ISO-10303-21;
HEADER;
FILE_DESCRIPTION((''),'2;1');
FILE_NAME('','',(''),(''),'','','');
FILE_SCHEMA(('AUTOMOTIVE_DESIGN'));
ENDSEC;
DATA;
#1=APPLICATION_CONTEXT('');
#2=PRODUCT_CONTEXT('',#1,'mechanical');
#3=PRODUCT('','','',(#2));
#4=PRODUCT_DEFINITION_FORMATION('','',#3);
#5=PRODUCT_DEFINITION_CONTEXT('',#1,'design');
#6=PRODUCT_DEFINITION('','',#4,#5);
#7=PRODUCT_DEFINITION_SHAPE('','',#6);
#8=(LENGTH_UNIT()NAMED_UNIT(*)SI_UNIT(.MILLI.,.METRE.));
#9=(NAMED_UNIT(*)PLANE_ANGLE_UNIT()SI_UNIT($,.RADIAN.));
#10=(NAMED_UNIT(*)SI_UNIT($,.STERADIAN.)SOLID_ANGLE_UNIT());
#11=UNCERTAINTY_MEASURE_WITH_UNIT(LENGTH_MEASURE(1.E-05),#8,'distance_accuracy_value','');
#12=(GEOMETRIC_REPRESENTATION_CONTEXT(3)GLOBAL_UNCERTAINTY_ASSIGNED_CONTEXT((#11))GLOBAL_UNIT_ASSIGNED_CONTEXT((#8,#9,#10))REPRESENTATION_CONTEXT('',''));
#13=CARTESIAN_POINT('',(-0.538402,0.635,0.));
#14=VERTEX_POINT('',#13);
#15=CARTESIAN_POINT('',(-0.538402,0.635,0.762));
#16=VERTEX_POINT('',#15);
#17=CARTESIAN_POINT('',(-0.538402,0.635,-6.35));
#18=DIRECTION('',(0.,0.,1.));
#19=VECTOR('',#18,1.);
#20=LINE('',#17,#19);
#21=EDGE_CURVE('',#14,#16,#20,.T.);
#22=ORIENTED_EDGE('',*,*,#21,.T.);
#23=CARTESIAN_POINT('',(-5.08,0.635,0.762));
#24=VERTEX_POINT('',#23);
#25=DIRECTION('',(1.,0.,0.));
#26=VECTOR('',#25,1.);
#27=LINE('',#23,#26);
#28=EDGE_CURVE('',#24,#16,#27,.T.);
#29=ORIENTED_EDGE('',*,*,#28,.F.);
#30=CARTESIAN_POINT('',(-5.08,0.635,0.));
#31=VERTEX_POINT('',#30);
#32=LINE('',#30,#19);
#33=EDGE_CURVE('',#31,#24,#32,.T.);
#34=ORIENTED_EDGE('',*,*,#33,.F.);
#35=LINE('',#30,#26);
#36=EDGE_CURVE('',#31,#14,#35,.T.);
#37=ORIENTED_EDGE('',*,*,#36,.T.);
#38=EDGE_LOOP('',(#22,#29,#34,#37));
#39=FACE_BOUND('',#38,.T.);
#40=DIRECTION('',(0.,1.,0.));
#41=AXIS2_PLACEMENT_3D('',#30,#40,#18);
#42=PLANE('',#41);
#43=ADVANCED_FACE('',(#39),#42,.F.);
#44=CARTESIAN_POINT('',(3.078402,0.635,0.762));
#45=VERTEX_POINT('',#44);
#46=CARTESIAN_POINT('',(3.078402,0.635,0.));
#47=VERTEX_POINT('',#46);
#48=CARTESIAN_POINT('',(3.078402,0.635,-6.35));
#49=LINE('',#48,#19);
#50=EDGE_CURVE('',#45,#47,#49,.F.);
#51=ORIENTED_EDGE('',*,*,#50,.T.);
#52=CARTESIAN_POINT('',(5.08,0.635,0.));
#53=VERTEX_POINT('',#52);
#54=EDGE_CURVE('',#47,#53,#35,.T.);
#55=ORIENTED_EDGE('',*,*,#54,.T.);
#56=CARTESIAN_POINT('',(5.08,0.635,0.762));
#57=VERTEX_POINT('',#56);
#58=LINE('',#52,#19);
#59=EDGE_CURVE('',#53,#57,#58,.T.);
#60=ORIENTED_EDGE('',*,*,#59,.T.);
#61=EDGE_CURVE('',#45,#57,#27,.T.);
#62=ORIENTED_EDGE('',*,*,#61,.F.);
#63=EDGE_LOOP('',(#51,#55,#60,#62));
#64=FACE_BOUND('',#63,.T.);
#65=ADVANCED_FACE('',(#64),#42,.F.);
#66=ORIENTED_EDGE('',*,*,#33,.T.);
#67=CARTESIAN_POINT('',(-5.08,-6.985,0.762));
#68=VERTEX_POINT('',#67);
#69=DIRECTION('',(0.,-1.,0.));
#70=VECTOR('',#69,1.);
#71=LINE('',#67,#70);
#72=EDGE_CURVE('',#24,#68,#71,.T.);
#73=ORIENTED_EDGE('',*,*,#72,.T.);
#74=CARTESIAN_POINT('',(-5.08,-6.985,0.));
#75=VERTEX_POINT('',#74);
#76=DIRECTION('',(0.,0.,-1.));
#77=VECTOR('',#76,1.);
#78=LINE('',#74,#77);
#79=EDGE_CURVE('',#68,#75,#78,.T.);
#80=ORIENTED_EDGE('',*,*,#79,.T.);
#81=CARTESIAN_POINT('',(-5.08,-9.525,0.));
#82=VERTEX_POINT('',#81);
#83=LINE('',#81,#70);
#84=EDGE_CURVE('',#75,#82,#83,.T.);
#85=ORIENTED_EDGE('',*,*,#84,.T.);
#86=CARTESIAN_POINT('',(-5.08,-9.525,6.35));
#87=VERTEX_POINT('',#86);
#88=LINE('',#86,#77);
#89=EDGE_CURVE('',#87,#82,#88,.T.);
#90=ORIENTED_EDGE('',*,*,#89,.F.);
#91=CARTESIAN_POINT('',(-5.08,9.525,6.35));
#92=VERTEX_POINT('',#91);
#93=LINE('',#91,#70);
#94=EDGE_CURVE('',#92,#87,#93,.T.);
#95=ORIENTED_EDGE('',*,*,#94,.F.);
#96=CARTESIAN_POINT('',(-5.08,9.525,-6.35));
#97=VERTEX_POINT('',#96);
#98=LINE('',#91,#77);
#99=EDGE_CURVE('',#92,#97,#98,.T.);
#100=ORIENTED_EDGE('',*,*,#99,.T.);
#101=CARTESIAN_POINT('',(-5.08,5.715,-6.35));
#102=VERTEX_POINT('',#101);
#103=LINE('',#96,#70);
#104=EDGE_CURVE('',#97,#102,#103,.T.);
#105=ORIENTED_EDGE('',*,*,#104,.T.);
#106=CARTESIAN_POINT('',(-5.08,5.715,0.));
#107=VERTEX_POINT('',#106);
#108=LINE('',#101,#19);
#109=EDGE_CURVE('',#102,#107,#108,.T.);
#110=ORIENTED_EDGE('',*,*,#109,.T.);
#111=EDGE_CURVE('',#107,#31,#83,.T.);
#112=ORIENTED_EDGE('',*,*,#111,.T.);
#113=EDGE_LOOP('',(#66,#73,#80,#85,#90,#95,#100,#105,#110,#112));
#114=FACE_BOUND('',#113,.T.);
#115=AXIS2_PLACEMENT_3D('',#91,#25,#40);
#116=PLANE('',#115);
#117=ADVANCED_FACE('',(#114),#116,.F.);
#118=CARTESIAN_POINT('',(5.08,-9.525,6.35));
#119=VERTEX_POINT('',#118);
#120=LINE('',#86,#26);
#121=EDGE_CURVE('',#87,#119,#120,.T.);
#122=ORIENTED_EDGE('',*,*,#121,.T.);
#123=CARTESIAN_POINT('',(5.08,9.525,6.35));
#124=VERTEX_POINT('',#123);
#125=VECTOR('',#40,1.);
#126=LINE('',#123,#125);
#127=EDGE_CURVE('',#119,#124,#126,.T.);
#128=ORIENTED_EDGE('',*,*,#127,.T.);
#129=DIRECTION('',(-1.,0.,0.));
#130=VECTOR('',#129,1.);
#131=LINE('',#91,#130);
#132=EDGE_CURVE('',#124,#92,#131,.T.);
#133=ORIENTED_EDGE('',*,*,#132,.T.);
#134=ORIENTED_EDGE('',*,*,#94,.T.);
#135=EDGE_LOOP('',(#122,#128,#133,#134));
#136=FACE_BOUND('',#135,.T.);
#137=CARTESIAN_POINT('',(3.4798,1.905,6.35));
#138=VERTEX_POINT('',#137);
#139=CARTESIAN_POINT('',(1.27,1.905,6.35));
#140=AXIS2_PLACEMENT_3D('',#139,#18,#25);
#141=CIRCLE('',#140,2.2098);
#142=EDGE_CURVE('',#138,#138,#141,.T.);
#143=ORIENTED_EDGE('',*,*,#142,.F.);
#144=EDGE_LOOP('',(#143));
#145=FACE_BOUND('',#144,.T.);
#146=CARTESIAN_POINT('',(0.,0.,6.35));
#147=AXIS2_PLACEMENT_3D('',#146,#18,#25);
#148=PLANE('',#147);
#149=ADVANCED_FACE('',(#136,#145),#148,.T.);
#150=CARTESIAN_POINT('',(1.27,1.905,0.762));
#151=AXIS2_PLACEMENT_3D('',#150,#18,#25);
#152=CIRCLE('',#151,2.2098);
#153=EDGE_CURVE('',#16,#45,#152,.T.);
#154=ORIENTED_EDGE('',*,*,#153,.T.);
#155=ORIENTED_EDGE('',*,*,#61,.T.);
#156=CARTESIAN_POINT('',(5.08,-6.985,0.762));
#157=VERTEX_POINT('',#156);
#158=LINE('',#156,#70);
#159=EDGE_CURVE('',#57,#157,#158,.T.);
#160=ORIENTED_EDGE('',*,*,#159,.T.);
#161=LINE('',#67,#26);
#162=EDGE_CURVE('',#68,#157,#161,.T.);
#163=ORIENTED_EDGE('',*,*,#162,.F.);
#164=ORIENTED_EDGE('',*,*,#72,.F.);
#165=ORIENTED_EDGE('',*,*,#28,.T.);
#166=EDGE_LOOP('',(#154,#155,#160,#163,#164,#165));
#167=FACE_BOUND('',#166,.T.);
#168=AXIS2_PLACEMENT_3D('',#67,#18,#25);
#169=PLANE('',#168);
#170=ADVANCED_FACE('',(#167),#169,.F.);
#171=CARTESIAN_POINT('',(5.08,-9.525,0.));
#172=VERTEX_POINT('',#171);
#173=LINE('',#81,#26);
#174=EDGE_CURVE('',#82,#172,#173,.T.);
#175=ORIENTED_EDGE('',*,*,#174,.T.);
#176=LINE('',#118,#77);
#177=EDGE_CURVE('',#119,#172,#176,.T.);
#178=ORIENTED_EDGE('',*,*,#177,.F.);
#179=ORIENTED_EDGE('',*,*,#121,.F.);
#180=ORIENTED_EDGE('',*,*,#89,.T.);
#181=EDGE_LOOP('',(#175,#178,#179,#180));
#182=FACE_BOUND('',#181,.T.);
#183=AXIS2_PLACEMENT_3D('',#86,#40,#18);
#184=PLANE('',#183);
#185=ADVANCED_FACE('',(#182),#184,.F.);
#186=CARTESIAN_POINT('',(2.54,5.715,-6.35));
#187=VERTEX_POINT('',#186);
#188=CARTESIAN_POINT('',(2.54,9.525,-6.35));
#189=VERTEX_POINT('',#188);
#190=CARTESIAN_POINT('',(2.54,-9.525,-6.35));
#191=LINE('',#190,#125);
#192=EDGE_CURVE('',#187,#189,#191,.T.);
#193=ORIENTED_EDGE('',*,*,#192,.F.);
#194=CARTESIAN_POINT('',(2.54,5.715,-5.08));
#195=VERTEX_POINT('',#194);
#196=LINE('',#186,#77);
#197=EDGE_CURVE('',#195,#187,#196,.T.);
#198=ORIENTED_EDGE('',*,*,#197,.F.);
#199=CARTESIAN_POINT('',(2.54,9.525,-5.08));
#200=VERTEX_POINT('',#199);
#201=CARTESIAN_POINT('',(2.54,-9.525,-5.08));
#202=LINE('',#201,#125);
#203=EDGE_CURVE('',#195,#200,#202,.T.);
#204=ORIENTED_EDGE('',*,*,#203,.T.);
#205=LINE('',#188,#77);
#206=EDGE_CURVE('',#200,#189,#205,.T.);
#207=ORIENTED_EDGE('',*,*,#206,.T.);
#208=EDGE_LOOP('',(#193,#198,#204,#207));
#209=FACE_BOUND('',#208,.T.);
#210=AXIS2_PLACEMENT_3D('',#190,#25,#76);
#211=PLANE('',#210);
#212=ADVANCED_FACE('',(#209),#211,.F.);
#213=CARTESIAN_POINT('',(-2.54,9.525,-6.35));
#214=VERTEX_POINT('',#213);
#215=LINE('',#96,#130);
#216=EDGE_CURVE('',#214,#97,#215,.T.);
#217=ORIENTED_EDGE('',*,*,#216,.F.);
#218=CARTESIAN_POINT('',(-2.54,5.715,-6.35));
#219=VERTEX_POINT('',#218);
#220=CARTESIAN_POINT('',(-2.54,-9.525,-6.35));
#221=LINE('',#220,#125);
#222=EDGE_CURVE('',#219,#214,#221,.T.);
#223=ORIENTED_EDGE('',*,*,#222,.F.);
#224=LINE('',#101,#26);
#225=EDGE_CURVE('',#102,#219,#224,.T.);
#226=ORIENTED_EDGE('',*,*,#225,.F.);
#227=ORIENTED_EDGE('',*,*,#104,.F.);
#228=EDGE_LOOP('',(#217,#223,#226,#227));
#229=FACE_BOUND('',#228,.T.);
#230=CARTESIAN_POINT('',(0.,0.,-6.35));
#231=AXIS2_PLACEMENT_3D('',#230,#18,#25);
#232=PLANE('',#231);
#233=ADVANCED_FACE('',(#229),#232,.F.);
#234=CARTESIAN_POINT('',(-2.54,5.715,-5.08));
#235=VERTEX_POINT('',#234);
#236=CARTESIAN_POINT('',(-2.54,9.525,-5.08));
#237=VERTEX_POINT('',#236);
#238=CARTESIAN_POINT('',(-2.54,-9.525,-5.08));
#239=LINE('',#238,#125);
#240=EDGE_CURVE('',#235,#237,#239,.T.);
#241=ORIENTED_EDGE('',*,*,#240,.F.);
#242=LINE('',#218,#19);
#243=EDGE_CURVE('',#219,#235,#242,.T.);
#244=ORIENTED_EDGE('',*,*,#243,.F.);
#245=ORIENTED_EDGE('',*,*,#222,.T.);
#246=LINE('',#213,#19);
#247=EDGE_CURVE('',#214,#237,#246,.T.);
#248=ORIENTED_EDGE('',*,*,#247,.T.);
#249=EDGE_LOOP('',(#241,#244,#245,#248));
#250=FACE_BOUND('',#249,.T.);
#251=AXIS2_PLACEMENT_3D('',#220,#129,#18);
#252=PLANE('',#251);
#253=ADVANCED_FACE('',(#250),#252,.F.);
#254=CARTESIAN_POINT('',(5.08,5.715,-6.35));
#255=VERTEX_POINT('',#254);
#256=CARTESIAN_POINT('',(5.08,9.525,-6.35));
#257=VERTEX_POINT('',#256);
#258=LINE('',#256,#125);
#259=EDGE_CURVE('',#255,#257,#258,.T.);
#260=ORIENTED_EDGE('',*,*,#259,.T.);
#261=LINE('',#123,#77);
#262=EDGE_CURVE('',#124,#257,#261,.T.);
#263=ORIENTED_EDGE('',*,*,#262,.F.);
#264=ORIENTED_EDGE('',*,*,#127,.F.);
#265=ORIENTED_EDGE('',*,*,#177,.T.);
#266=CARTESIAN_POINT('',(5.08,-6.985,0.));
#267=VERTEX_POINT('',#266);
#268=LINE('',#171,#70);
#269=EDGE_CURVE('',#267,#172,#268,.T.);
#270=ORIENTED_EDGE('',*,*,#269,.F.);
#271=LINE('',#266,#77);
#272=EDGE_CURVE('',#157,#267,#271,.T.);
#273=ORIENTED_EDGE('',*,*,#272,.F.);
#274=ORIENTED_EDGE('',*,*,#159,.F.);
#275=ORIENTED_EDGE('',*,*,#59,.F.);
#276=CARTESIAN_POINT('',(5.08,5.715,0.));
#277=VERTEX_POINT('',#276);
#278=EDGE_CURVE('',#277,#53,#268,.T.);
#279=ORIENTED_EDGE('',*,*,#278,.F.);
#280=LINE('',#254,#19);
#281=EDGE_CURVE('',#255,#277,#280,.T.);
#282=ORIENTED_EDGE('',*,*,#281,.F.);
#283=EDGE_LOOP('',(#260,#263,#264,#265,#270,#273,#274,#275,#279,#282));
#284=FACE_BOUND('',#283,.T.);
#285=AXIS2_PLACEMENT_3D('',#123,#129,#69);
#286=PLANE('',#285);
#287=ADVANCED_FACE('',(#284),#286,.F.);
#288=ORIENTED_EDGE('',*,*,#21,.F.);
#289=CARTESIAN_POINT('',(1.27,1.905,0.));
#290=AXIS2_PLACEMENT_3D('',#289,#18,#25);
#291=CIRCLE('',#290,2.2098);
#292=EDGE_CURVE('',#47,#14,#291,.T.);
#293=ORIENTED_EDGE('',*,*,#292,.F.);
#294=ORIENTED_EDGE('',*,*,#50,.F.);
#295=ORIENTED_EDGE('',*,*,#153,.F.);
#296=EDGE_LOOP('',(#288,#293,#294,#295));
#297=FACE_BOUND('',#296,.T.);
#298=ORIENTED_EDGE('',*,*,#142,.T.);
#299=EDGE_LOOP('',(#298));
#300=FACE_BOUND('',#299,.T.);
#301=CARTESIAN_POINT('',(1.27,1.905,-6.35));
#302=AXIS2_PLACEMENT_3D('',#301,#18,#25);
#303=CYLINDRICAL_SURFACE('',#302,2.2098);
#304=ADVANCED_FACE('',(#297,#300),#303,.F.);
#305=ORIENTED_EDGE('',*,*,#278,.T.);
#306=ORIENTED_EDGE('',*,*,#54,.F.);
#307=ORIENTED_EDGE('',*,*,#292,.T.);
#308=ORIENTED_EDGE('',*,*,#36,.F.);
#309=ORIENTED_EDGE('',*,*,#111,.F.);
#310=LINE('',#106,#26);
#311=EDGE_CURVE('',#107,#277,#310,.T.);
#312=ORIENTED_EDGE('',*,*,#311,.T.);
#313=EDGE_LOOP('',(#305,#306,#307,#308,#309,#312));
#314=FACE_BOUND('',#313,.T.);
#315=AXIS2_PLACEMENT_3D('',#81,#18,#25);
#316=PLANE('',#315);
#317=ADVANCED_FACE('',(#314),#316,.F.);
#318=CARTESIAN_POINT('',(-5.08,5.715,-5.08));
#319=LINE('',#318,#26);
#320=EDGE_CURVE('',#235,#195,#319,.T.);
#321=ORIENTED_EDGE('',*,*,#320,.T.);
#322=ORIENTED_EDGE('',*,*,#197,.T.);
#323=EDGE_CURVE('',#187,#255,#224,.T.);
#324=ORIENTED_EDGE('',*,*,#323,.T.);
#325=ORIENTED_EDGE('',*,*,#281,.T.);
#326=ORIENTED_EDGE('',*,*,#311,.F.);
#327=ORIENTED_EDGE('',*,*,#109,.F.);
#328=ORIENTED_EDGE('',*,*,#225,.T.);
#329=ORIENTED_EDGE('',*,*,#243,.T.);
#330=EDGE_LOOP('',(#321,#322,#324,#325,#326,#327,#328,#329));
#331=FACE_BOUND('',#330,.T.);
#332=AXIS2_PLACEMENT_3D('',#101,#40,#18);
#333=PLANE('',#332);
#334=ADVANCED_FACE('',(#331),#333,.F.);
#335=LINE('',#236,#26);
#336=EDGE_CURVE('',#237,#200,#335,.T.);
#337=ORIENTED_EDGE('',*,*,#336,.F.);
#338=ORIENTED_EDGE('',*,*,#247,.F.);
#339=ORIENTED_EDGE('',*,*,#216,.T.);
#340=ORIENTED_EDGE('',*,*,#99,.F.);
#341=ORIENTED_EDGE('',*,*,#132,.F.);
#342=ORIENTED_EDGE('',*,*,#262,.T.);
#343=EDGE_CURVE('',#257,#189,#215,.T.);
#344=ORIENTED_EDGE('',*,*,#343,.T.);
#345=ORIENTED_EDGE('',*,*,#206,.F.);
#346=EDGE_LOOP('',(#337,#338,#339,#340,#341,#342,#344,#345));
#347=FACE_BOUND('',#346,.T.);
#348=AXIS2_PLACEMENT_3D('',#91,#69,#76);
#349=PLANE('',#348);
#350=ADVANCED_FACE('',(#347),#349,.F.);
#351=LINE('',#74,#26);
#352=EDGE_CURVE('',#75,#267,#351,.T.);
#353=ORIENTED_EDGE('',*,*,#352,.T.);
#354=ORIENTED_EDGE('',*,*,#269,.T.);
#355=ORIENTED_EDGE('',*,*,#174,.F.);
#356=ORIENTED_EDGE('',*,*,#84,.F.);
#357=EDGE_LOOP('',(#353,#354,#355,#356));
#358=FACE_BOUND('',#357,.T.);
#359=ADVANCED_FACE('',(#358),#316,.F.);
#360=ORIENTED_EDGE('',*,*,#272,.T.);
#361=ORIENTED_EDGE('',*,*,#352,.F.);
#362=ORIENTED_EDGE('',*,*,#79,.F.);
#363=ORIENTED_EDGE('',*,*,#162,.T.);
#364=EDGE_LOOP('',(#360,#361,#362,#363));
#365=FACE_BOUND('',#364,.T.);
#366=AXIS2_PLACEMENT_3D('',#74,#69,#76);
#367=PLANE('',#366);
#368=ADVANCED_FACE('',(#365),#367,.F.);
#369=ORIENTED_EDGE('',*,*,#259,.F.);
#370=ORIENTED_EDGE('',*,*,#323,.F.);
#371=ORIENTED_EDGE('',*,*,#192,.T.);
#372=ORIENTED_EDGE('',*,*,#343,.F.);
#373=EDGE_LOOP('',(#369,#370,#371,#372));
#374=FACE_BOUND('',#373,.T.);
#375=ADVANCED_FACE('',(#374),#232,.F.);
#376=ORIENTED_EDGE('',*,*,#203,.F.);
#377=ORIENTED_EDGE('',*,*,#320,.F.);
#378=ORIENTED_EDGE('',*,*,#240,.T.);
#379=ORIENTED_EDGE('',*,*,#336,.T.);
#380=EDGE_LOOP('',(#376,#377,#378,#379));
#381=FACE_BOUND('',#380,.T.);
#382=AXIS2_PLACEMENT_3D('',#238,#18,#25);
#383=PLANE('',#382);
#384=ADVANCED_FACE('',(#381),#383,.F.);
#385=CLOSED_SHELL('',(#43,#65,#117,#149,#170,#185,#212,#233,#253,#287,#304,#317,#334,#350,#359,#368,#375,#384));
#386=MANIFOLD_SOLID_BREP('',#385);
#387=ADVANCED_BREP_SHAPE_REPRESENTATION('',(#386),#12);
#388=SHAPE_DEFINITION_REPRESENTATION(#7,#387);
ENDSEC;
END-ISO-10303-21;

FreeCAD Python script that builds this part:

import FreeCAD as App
import Part
import Sketcher
from FreeCAD import Vector
Q = App.Units.Quantity

doc = App.newDocument("Part")
params = doc.addObject("Spreadsheet::Sheet", "Params")
for row, (alias, value) in enumerate([
    ("sketch1_width", "0.4 in"),
    ("sketch1_height", "0.75 in"),
    ("pad1_length", "0.5 in"),
    ("sketch2_width", "0.6 in"),
    ("sketch2_height", "0.25 in"),
    ("sketch3_width", "0.2 in"),
    ("sketch3_height", "0.05 in"),
    ("sketch4_width", "0.3 in"),
    ("sketch4_height", "0.03 in"),
    ("sketch5_diameter", "0.174 in"),
], start=1):
    params.set(f"A{row}", alias)
    params.set(f"B{row}", "=" + value)
    params.setAlias(f"B{row}", alias)

body = doc.addObject("PartDesign::Body", "Body")

# Sketch on XY plane
sketch1 = body.newObject("Sketcher::SketchObject", "Sketch")
sketch1.AttachmentSupport = (doc.getObject("XY_Plane"), [""])
sketch1.MapMode = "FlatFace"
sketch1.addGeometry(Part.LineSegment(Vector(-5, 10, 0), Vector(-5, -10, 0)), False)
sketch1.addGeometry(Part.LineSegment(Vector(-5, -10, 0), Vector(5, -10, 0)), False)
sketch1.addGeometry(Part.LineSegment(Vector(5, -10, 0), Vector(5, 10, 0)), False)
sketch1.addGeometry(Part.LineSegment(Vector(5, 10, 0), Vector(-5, 10, 0)), False)
sketch1.addConstraint(Sketcher.Constraint("Coincident", 0, 2, 1, 1))
sketch1.addConstraint(Sketcher.Constraint("Coincident", 1, 2, 2, 1))
sketch1.addConstraint(Sketcher.Constraint("Coincident", 2, 2, 3, 1))
sketch1.addConstraint(Sketcher.Constraint("Coincident", 3, 2, 0, 1))
sketch1.addConstraint(Sketcher.Constraint("Vertical", 0))
sketch1.addConstraint(Sketcher.Constraint("Horizontal", 1))
sketch1.addConstraint(Sketcher.Constraint("Vertical", 2))
sketch1.addConstraint(Sketcher.Constraint("Horizontal", 3))
sketch1.addConstraint(Sketcher.Constraint("Symmetric", 0, 2, 2, 2, -1, 1))
sketch1.addConstraint(Sketcher.Constraint("DistanceX", 1, 1, 1, 2, Q("0.4 in")))
sketch1.addConstraint(Sketcher.Constraint("DistanceY", 0, 2, 0, 1, Q("0.75 in")))
sketch1.setExpression("Constraints[9]", "Params.sketch1_width")
sketch1.setExpression("Constraints[10]", "Params.sketch1_height")
pad1 = body.newObject("PartDesign::Pad", "Pad")
pad1.Profile = sketch1
pad1.setExpression("Length", "Params.pad1_length")
pad1.Midplane = True

# Sketch on YZ plane
sketch2 = body.newObject("Sketcher::SketchObject", "Sketch001")
sketch2.AttachmentSupport = (doc.getObject("YZ_Plane"), [""])
sketch2.MapMode = "FlatFace"
sketch2.AttachmentOffset = App.Placement(Vector(0, 0, 0.2 * 25.4), App.Rotation())
sketch2.addGeometry(Part.LineSegment(Vector(6, 0, 0), Vector(-10, 0, 0)), False)
sketch2.addGeometry(Part.LineSegment(Vector(-10, 0, 0), Vector(-10, -6, 0)), False)
sketch2.addGeometry(Part.LineSegment(Vector(-10, -6, 0), Vector(6, -6, 0)), False)
sketch2.addGeometry(Part.LineSegment(Vector(6, -6, 0), Vector(6, 0, 0)), False)
sketch2.addConstraint(Sketcher.Constraint("Coincident", 0, 2, 1, 1))
sketch2.addConstraint(Sketcher.Constraint("Coincident", 1, 2, 2, 1))
sketch2.addConstraint(Sketcher.Constraint("Coincident", 2, 2, 3, 1))
sketch2.addConstraint(Sketcher.Constraint("Coincident", 3, 2, 0, 1))
sketch2.addConstraint(Sketcher.Constraint("Horizontal", 0))
sketch2.addConstraint(Sketcher.Constraint("Vertical", 1))
sketch2.addConstraint(Sketcher.Constraint("Horizontal", 2))
sketch2.addConstraint(Sketcher.Constraint("Vertical", 3))
sketch2.addConstraint(Sketcher.Constraint("PointOnObject", 0, 2, -1))
sketch2.addConstraint(Sketcher.Constraint("DistanceX", 0, 2, 0, 1, Q("0.6 in")))
sketch2.addConstraint(Sketcher.Constraint("DistanceY", 1, 2, 1, 1, Q("0.25 in")))
sketch2.addConstraint(Sketcher.Constraint("DistanceX", 0, 2, -1, 1, Q("0.375 in")))
sketch2.setExpression("Constraints[9]", "Params.sketch2_width")
sketch2.setExpression("Constraints[10]", "Params.sketch2_height")
pocket1 = body.newObject("PartDesign::Pocket", "Pocket")
pocket1.Profile = sketch2
pocket1.Type = "ThroughAll"

# Sketch on XZ plane
sketch3 = body.newObject("Sketcher::SketchObject", "Sketch002")
sketch3.AttachmentSupport = (doc.getObject("XZ_Plane"), [""])
sketch3.MapMode = "FlatFace"
sketch3.AttachmentOffset = App.Placement(Vector(0, 0, -0.375 * 25.4), App.Rotation())
sketch3.addGeometry(Part.LineSegment(Vector(-2.5, -6.3, 0), Vector(-2.5, -5.1, 0)), False)
sketch3.addGeometry(Part.LineSegment(Vector(-2.5, -5.1, 0), Vector(2.5, -5.1, 0)), False)
sketch3.addGeometry(Part.LineSegment(Vector(2.5, -5.1, 0), Vector(2.5, -6.3, 0)), False)
sketch3.addGeometry(Part.LineSegment(Vector(2.5, -6.3, 0), Vector(-2.5, -6.3, 0)), False)
sketch3.addConstraint(Sketcher.Constraint("Coincident", 0, 2, 1, 1))
sketch3.addConstraint(Sketcher.Constraint("Coincident", 1, 2, 2, 1))
sketch3.addConstraint(Sketcher.Constraint("Coincident", 2, 2, 3, 1))
sketch3.addConstraint(Sketcher.Constraint("Coincident", 3, 2, 0, 1))
sketch3.addConstraint(Sketcher.Constraint("Vertical", 0))
sketch3.addConstraint(Sketcher.Constraint("Horizontal", 1))
sketch3.addConstraint(Sketcher.Constraint("Vertical", 2))
sketch3.addConstraint(Sketcher.Constraint("Horizontal", 3))
sketch3.addConstraint(Sketcher.Constraint("DistanceX", 1, 1, 1, 2, Q("0.2 in")))
sketch3.addConstraint(Sketcher.Constraint("DistanceY", 0, 1, 0, 2, Q("0.05 in")))
sketch3.addConstraint(Sketcher.Constraint("DistanceX", 0, 2, -1, 1, Q("0.1 in")))
sketch3.addConstraint(Sketcher.Constraint("DistanceY", 0, 2, -1, 1, Q("0.2 in")))
sketch3.setExpression("Constraints[8]", "Params.sketch3_width")
sketch3.setExpression("Constraints[9]", "Params.sketch3_height")
pocket2 = body.newObject("PartDesign::Pocket", "Pocket001")
pocket2.Profile = sketch3
pocket2.Type = "ThroughAll"
pocket2.Reversed = True

# Sketch on YZ plane
sketch4 = body.newObject("Sketcher::SketchObject", "Sketch003")
sketch4.AttachmentSupport = (doc.getObject("YZ_Plane"), [""])
sketch4.MapMode = "FlatFace"
sketch4.AttachmentOffset = App.Placement(Vector(0, 0, 0.2 * 25.4), App.Rotation())
sketch4.addGeometry(Part.LineSegment(Vector(0.6, 0.8, 0), Vector(-7, 0.8, 0)), False)
sketch4.addGeometry(Part.LineSegment(Vector(-7, 0.8, 0), Vector(-7, 0, 0)), False)
sketch4.addGeometry(Part.LineSegment(Vector(-7, 0, 0), Vector(0.6, 0, 0)), False)
sketch4.addGeometry(Part.LineSegment(Vector(0.6, 0, 0), Vector(0.6, 0.8, 0)), False)
sketch4.addConstraint(Sketcher.Constraint("Coincident", 0, 2, 1, 1))
sketch4.addConstraint(Sketcher.Constraint("Coincident", 1, 2, 2, 1))
sketch4.addConstraint(Sketcher.Constraint("Coincident", 2, 2, 3, 1))
sketch4.addConstraint(Sketcher.Constraint("Coincident", 3, 2, 0, 1))
sketch4.addConstraint(Sketcher.Constraint("Horizontal", 0))
sketch4.addConstraint(Sketcher.Constraint("Vertical", 1))
sketch4.addConstraint(Sketcher.Constraint("Horizontal", 2))
sketch4.addConstraint(Sketcher.Constraint("Vertical", 3))
sketch4.addConstraint(Sketcher.Constraint("PointOnObject", 1, 2, -1))
sketch4.addConstraint(Sketcher.Constraint("DistanceX", 0, 2, 0, 1, Q("0.3 in")))
sketch4.addConstraint(Sketcher.Constraint("DistanceY", 1, 2, 1, 1, Q("0.03 in")))
sketch4.addConstraint(Sketcher.Constraint("DistanceX", 0, 2, -1, 1, Q("0.275 in")))
sketch4.setExpression("Constraints[9]", "Params.sketch4_width")
sketch4.setExpression("Constraints[10]", "Params.sketch4_height")
pocket3 = body.newObject("PartDesign::Pocket", "Pocket002")
pocket3.Profile = sketch4
pocket3.Type = "ThroughAll"

# Sketch on XY plane
sketch5 = body.newObject("Sketcher::SketchObject", "Sketch004")
sketch5.AttachmentSupport = (doc.getObject("XY_Plane"), [""])
sketch5.MapMode = "FlatFace"
sketch5.AttachmentOffset = App.Placement(Vector(0, 0, 0.25 * 25.4), App.Rotation())
sketch5.addGeometry(Part.Circle(Vector(1.3, 1.9, 0), Vector(0, 0, 1), 2.2), False)
sketch5.addConstraint(Sketcher.Constraint("Diameter", 0, Q("0.174 in")))
sketch5.addConstraint(Sketcher.Constraint("DistanceX", -1, 1, 0, 3, Q("0.05 in")))
sketch5.addConstraint(Sketcher.Constraint("DistanceY", -1, 1, 0, 3, Q("0.075 in")))
sketch5.setExpression("Constraints[0]", "Params.sketch5_diameter")
pocket4 = body.newObject("PartDesign::Pocket", "Pocket003")
pocket4.Profile = sketch5
pocket4.Type = "ThroughAll"

doc.recompute()
